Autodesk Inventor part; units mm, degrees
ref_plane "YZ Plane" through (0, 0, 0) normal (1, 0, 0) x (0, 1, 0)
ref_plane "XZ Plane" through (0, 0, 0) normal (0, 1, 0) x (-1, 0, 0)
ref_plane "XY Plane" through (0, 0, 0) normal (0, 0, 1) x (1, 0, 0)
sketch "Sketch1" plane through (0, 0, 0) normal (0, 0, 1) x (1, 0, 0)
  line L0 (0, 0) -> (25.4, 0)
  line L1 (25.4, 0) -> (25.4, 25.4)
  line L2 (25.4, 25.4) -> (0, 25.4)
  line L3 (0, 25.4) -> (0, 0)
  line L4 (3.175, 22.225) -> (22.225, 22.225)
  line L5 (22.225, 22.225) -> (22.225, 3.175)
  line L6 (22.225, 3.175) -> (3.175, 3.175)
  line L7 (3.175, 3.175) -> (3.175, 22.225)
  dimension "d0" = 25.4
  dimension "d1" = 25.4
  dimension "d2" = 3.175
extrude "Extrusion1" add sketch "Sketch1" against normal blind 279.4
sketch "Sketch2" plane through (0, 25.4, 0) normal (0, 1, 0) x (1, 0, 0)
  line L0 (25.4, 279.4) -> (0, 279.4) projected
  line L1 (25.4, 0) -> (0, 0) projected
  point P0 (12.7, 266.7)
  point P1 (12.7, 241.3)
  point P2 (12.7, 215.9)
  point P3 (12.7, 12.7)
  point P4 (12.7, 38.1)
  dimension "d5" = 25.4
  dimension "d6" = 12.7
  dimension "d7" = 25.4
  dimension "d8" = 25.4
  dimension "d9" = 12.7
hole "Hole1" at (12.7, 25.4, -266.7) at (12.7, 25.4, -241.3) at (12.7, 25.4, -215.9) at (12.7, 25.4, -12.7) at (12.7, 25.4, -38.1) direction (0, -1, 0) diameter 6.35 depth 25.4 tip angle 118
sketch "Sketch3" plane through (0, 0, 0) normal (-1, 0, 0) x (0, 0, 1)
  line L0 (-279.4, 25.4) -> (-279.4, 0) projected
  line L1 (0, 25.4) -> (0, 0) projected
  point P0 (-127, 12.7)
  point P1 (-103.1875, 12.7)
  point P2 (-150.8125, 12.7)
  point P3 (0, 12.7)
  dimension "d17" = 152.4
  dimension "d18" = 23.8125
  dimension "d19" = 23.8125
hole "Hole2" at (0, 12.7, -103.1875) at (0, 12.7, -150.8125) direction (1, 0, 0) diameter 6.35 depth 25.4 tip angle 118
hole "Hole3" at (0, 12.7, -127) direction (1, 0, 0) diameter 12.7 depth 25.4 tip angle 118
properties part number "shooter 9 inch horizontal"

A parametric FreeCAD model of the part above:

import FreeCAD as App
import Part
import Sketcher
Q = App.Units.Quantity

doc = App.newDocument("Part")
params = doc.addObject("Spreadsheet::Sheet", "Params")
for row, (alias, value) in enumerate([
    ("sketch1_width", "1 in"),
    ("pad1_length", "11 in"),
    ("sketch2_diameter", "0.25 in"),
    ("hole_diameter", "0.25 in"),
    ("hole_depth", "1 in"),
    ("sketch3_diameter", "0.25 in"),
    ("hole2_diameter", "0.25 in"),
    ("hole2_depth", "1 in"),
    ("sketch4_diameter", "0.5 in"),
    ("hole3_diameter", "0.5 in"),
    ("hole3_depth", "1 in"),
], start=1):
    params.set(f"A{row}", alias)
    params.set(f"B{row}", "=" + value)
    params.setAlias(f"B{row}", alias)

body = doc.addObject("PartDesign::Body", "Body")

sketch1 = body.newObject("Sketcher::SketchObject", "Sketch")
sketch1.AttachmentSupport = (doc.getObject("XY_Plane"), [""])
sketch1.MapMode = "FlatFace"
sketch1.addGeometry([
    Part.LineSegment(App.Vector(0, 25, 0), App.Vector(0, 0, 0)),
    Part.LineSegment(App.Vector(0, 0, 0), App.Vector(25, 0, 0)),
    Part.LineSegment(App.Vector(25, 0, 0), App.Vector(25, 25, 0)),
    Part.LineSegment(App.Vector(25, 25, 0), App.Vector(0, 25, 0)),
    Part.LineSegment(App.Vector(3, 3, 0), App.Vector(3, 22, 0)),
    Part.LineSegment(App.Vector(3, 22, 0), App.Vector(22, 22, 0)),
    Part.LineSegment(App.Vector(22, 22, 0), App.Vector(22, 3, 0)),
    Part.LineSegment(App.Vector(22, 3, 0), App.Vector(3, 3, 0)),
], False)
sketch1.addConstraint([
    Sketcher.Constraint("Coincident", 0, 2, 1, 1),
    Sketcher.Constraint("Coincident", 1, 2, 2, 1),
    Sketcher.Constraint("Coincident", 2, 2, 3, 1),
    Sketcher.Constraint("Coincident", 3, 2, 0, 1),
    Sketcher.Constraint("Coincident", 4, 2, 5, 1),
    Sketcher.Constraint("Coincident", 5, 2, 6, 1),
    Sketcher.Constraint("Coincident", 6, 2, 7, 1),
    Sketcher.Constraint("Coincident", 7, 2, 4, 1),
    Sketcher.Constraint("Vertical", 0),
    Sketcher.Constraint("Horizontal", 1),
    Sketcher.Constraint("Vertical", 2),
    Sketcher.Constraint("Horizontal", 3),
    Sketcher.Constraint("Vertical", 4),
    Sketcher.Constraint("Horizontal", 5),
    Sketcher.Constraint("Vertical", 6),
    Sketcher.Constraint("Horizontal", 7),
    Sketcher.Constraint("Coincident", 0, 2, -1, 1),
    Sketcher.Constraint("Equal", 3, 0),
    Sketcher.Constraint("Equal", 7, 4),
    Sketcher.Constraint("DistanceX", 1, 1, 1, 2, Q("1 in")),
    Sketcher.Constraint("DistanceX", -1, 1, 4, 2, Q("0.125 in")),
    Sketcher.Constraint("DistanceY", -1, 1, 6, 2, Q("0.125 in")),
    Sketcher.Constraint("DistanceY", 4, 2, 3, 2, Q("0.125 in")),
])
sketch1.setExpression("Constraints[19]", "Params.sketch1_width")
pad1 = body.newObject("PartDesign::Pad", "Pad")
pad1.Profile = sketch1
pad1.setExpression("Length", "Params.pad1_length")
pad1.Reversed = True

sketch2 = body.newObject("Sketcher::SketchObject", "Sketch001")
sketch2.AttachmentSupport = (doc.getObject("XZ_Plane"), [""])
sketch2.MapMode = "FlatFace"
sketch2.AttachmentOffset = App.Placement(App.Vector(0, 0, -1 * 25.4), App.Rotation())
sketch2.addGeometry([
    Part.Circle(App.Vector(12.7, -266.7, 0), App.Vector(0, 0, 1), 3.2),
    Part.Circle(App.Vector(12.7, -241.3, 0), App.Vector(0, 0, 1), 3.2),
    Part.Circle(App.Vector(12.7, -215.9, 0), App.Vector(0, 0, 1), 3.2),
    Part.Circle(App.Vector(12.7, -12.7, 0), App.Vector(0, 0, 1), 3.2),
    Part.Circle(App.Vector(12.7, -38.1, 0), App.Vector(0, 0, 1), 3.2),
], False)
sketch2.addConstraint([
    Sketcher.Constraint("Equal", 0, 1),
    Sketcher.Constraint("Equal", 1, 2),
    Sketcher.Constraint("Equal", 2, 3),
    Sketcher.Constraint("Equal", 3, 4),
    Sketcher.Constraint("Vertical", 0, 3, 1, 3),
    Sketcher.Constraint("Vertical", 1, 3, 2, 3),
    Sketcher.Constraint("Vertical", 2, 3, 3, 3),
    Sketcher.Constraint("Vertical", 3, 3, 4, 3),
    Sketcher.Constraint("Diameter", 0, Q("0.25 in")),
    Sketcher.Constraint("DistanceY", 0, 3, 1, 3, Q("1 in")),
    Sketcher.Constraint("DistanceY", 1, 3, 2, 3, Q("1 in")),
    Sketcher.Constraint("DistanceY", 2, 3, 3, 3, Q("8 in")),
    Sketcher.Constraint("DistanceY", 4, 3, 3, 3, Q("1 in")),
    Sketcher.Constraint("DistanceX", -1, 1, 0, 3, Q("0.5 in")),
    Sketcher.Constraint("DistanceY", 0, 3, -1, 1, Q("10.5 in")),
])
sketch2.setExpression("Constraints[8]", "Params.sketch2_diameter")
doc.recompute()
hole = body.newObject("PartDesign::Hole", "Hole")
hole.Profile = sketch2
hole.ThreadType = "None"
hole.setExpression("Diameter", "Params.hole_diameter")
hole.DepthType = "Dimension"
hole.setExpression("Depth", "Params.hole_depth")
hole.DrillPoint = "Angled"
hole.DrillPointAngle = 118
hole.Reversed = True

sketch3 = body.newObject("Sketcher::SketchObject", "Sketch002")
sketch3.AttachmentSupport = (doc.getObject("YZ_Plane"), [""])
sketch3.MapMode = "FlatFace"
sketch3.addGeometry([
    Part.Circle(App.Vector(12.7, -103.2, 0), App.Vector(0, 0, 1), 3.2),
    Part.Circle(App.Vector(12.7, -150.8, 0), App.Vector(0, 0, 1), 3.2),
], False)
sketch3.addConstraint([
    Sketcher.Constraint("Equal", 0, 1),
    Sketcher.Constraint("Vertical", 0, 3, 1, 3),
    Sketcher.Constraint("Diameter", 0, Q("0.25 in")),
    Sketcher.Constraint("DistanceX", -1, 1, 0, 3, Q("0.5 in")),
    Sketcher.Constraint("DistanceY", 0, 3, -1, 1, Q("4.0625 in")),
    Sketcher.Constraint("DistanceY", 1, 3, -1, 1, Q("5.9375 in")),
])
sketch3.setExpression("Constraints[2]", "Params.sketch3_diameter")
doc.recompute()
hole2 = body.newObject("PartDesign::Hole", "Hole001")
hole2.Profile = sketch3
hole2.ThreadType = "None"
hole2.setExpression("Diameter", "Params.hole2_diameter")
hole2.DepthType = "Dimension"
hole2.setExpression("Depth", "Params.hole2_depth")
hole2.DrillPoint = "Angled"
hole2.DrillPointAngle = 118
hole2.Reversed = True

sketch4 = body.newObject("Sketcher::SketchObject", "Sketch003")
sketch4.AttachmentSupport = (doc.getObject("YZ_Plane"), [""])
sketch4.MapMode = "FlatFace"
sketch4.addGeometry(Part.Circle(App.Vector(13, -127, 0), App.Vector(0, 0, 1), 6), False)
sketch4.addConstraint([
    Sketcher.Constraint("Diameter", 0, Q("0.5 in")),
    Sketcher.Constraint("DistanceY", 0, 3, -1, 1, Q("5 in")),
    Sketcher.Constraint("DistanceX", -1, 1, 0, 3, Q("0.5 in")),
])
sketch4.setExpression("Constraints[0]", "Params.sketch4_diameter")
doc.recompute()
hole3 = body.newObject("PartDesign::Hole", "Hole002")
hole3.Profile = sketch4
hole3.ThreadType = "None"
hole3.setExpression("Diameter", "Params.hole3_diameter")
hole3.DepthType = "Dimension"
hole3.setExpression("Depth", "Params.hole3_depth")
hole3.DrillPoint = "Angled"
hole3.DrillPointAngle = 118
hole3.Reversed = True

doc.recompute()
